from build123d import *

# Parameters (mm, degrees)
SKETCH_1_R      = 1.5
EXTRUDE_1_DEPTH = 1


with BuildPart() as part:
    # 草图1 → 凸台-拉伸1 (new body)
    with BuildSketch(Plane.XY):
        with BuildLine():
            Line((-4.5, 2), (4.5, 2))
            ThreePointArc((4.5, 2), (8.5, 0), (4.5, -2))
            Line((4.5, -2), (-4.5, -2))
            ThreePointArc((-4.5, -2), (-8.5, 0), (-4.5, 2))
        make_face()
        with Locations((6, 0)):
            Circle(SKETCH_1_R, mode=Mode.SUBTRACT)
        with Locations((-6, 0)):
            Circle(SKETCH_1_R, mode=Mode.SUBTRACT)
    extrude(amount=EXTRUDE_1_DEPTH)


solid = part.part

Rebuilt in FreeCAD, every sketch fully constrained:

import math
import FreeCAD as App
import Part
import Sketcher

doc = App.newDocument("Part")
body = doc.addObject("PartDesign::Body", "Body")

# Sketch on XY plane
sketch1 = doc.addObject("Sketcher::SketchObject", "Sketch")
body.addObject(sketch1)
sketch1.AttachmentSupport = (doc.XY_Plane, [""])
sketch1.MapMode = "FlatFace"
sketch1.addGeometry([
    Part.LineSegment(App.Vector(4.5, 2, 0), App.Vector(-4.5, 2, 0)),  # 0
    Part.ArcOfCircle(Part.Circle(App.Vector(-6, 0, 0), App.Vector(0, 0, 1), 2.5), math.radians(53), math.radians(307)),  # 1
    Part.LineSegment(App.Vector(-4.5, -2, 0), App.Vector(4.5, -2, 0)),  # 2
    Part.ArcOfCircle(Part.Circle(App.Vector(6, 0, 0), App.Vector(0, 0, 1), 2.5), math.radians(-127), math.radians(127)),  # 3
    Part.Circle(App.Vector(6, 0, 0), App.Vector(0, 0, 1), 1.5),  # 4
    Part.Circle(App.Vector(-6, 0, 0), App.Vector(0, 0, 1), 1.5),  # 5
], False)
sketch1.addConstraint([
    Sketcher.Constraint("Coincident", 0, 2, 1, 1),
    Sketcher.Constraint("Coincident", 1, 2, 2, 1),
    Sketcher.Constraint("Coincident", 2, 2, 3, 1),
    Sketcher.Constraint("Coincident", 3, 2, 0, 1),
    Sketcher.Constraint("Horizontal", 0),
    Sketcher.Constraint("Horizontal", 2),
    Sketcher.Constraint("Coincident", 4, 3, 3, 3),
    Sketcher.Constraint("Coincident", 5, 3, 1, 3),
    Sketcher.Constraint("Equal", 1, 3),
    Sketcher.Constraint("Equal", 4, 5),
    Sketcher.Constraint("Symmetric", 1, 3, 3, 3, -1, 1),
    Sketcher.Constraint("Symmetric", 0, 2, 1, 2, -1),
    Sketcher.Constraint("Diameter", 4, 3.0),
    Sketcher.Constraint("Radius", 1, 2.5),
    Sketcher.Constraint("DistanceX", 0, 2, 0, 1, 9.0),
    Sketcher.Constraint("DistanceX", 1, 3, -1, 1, 6.0),
])
pad1 = doc.addObject("PartDesign::Pad", "Pad")
body.addObject(pad1)
pad1.Profile = sketch1
pad1.Length = 1

doc.recompute()
